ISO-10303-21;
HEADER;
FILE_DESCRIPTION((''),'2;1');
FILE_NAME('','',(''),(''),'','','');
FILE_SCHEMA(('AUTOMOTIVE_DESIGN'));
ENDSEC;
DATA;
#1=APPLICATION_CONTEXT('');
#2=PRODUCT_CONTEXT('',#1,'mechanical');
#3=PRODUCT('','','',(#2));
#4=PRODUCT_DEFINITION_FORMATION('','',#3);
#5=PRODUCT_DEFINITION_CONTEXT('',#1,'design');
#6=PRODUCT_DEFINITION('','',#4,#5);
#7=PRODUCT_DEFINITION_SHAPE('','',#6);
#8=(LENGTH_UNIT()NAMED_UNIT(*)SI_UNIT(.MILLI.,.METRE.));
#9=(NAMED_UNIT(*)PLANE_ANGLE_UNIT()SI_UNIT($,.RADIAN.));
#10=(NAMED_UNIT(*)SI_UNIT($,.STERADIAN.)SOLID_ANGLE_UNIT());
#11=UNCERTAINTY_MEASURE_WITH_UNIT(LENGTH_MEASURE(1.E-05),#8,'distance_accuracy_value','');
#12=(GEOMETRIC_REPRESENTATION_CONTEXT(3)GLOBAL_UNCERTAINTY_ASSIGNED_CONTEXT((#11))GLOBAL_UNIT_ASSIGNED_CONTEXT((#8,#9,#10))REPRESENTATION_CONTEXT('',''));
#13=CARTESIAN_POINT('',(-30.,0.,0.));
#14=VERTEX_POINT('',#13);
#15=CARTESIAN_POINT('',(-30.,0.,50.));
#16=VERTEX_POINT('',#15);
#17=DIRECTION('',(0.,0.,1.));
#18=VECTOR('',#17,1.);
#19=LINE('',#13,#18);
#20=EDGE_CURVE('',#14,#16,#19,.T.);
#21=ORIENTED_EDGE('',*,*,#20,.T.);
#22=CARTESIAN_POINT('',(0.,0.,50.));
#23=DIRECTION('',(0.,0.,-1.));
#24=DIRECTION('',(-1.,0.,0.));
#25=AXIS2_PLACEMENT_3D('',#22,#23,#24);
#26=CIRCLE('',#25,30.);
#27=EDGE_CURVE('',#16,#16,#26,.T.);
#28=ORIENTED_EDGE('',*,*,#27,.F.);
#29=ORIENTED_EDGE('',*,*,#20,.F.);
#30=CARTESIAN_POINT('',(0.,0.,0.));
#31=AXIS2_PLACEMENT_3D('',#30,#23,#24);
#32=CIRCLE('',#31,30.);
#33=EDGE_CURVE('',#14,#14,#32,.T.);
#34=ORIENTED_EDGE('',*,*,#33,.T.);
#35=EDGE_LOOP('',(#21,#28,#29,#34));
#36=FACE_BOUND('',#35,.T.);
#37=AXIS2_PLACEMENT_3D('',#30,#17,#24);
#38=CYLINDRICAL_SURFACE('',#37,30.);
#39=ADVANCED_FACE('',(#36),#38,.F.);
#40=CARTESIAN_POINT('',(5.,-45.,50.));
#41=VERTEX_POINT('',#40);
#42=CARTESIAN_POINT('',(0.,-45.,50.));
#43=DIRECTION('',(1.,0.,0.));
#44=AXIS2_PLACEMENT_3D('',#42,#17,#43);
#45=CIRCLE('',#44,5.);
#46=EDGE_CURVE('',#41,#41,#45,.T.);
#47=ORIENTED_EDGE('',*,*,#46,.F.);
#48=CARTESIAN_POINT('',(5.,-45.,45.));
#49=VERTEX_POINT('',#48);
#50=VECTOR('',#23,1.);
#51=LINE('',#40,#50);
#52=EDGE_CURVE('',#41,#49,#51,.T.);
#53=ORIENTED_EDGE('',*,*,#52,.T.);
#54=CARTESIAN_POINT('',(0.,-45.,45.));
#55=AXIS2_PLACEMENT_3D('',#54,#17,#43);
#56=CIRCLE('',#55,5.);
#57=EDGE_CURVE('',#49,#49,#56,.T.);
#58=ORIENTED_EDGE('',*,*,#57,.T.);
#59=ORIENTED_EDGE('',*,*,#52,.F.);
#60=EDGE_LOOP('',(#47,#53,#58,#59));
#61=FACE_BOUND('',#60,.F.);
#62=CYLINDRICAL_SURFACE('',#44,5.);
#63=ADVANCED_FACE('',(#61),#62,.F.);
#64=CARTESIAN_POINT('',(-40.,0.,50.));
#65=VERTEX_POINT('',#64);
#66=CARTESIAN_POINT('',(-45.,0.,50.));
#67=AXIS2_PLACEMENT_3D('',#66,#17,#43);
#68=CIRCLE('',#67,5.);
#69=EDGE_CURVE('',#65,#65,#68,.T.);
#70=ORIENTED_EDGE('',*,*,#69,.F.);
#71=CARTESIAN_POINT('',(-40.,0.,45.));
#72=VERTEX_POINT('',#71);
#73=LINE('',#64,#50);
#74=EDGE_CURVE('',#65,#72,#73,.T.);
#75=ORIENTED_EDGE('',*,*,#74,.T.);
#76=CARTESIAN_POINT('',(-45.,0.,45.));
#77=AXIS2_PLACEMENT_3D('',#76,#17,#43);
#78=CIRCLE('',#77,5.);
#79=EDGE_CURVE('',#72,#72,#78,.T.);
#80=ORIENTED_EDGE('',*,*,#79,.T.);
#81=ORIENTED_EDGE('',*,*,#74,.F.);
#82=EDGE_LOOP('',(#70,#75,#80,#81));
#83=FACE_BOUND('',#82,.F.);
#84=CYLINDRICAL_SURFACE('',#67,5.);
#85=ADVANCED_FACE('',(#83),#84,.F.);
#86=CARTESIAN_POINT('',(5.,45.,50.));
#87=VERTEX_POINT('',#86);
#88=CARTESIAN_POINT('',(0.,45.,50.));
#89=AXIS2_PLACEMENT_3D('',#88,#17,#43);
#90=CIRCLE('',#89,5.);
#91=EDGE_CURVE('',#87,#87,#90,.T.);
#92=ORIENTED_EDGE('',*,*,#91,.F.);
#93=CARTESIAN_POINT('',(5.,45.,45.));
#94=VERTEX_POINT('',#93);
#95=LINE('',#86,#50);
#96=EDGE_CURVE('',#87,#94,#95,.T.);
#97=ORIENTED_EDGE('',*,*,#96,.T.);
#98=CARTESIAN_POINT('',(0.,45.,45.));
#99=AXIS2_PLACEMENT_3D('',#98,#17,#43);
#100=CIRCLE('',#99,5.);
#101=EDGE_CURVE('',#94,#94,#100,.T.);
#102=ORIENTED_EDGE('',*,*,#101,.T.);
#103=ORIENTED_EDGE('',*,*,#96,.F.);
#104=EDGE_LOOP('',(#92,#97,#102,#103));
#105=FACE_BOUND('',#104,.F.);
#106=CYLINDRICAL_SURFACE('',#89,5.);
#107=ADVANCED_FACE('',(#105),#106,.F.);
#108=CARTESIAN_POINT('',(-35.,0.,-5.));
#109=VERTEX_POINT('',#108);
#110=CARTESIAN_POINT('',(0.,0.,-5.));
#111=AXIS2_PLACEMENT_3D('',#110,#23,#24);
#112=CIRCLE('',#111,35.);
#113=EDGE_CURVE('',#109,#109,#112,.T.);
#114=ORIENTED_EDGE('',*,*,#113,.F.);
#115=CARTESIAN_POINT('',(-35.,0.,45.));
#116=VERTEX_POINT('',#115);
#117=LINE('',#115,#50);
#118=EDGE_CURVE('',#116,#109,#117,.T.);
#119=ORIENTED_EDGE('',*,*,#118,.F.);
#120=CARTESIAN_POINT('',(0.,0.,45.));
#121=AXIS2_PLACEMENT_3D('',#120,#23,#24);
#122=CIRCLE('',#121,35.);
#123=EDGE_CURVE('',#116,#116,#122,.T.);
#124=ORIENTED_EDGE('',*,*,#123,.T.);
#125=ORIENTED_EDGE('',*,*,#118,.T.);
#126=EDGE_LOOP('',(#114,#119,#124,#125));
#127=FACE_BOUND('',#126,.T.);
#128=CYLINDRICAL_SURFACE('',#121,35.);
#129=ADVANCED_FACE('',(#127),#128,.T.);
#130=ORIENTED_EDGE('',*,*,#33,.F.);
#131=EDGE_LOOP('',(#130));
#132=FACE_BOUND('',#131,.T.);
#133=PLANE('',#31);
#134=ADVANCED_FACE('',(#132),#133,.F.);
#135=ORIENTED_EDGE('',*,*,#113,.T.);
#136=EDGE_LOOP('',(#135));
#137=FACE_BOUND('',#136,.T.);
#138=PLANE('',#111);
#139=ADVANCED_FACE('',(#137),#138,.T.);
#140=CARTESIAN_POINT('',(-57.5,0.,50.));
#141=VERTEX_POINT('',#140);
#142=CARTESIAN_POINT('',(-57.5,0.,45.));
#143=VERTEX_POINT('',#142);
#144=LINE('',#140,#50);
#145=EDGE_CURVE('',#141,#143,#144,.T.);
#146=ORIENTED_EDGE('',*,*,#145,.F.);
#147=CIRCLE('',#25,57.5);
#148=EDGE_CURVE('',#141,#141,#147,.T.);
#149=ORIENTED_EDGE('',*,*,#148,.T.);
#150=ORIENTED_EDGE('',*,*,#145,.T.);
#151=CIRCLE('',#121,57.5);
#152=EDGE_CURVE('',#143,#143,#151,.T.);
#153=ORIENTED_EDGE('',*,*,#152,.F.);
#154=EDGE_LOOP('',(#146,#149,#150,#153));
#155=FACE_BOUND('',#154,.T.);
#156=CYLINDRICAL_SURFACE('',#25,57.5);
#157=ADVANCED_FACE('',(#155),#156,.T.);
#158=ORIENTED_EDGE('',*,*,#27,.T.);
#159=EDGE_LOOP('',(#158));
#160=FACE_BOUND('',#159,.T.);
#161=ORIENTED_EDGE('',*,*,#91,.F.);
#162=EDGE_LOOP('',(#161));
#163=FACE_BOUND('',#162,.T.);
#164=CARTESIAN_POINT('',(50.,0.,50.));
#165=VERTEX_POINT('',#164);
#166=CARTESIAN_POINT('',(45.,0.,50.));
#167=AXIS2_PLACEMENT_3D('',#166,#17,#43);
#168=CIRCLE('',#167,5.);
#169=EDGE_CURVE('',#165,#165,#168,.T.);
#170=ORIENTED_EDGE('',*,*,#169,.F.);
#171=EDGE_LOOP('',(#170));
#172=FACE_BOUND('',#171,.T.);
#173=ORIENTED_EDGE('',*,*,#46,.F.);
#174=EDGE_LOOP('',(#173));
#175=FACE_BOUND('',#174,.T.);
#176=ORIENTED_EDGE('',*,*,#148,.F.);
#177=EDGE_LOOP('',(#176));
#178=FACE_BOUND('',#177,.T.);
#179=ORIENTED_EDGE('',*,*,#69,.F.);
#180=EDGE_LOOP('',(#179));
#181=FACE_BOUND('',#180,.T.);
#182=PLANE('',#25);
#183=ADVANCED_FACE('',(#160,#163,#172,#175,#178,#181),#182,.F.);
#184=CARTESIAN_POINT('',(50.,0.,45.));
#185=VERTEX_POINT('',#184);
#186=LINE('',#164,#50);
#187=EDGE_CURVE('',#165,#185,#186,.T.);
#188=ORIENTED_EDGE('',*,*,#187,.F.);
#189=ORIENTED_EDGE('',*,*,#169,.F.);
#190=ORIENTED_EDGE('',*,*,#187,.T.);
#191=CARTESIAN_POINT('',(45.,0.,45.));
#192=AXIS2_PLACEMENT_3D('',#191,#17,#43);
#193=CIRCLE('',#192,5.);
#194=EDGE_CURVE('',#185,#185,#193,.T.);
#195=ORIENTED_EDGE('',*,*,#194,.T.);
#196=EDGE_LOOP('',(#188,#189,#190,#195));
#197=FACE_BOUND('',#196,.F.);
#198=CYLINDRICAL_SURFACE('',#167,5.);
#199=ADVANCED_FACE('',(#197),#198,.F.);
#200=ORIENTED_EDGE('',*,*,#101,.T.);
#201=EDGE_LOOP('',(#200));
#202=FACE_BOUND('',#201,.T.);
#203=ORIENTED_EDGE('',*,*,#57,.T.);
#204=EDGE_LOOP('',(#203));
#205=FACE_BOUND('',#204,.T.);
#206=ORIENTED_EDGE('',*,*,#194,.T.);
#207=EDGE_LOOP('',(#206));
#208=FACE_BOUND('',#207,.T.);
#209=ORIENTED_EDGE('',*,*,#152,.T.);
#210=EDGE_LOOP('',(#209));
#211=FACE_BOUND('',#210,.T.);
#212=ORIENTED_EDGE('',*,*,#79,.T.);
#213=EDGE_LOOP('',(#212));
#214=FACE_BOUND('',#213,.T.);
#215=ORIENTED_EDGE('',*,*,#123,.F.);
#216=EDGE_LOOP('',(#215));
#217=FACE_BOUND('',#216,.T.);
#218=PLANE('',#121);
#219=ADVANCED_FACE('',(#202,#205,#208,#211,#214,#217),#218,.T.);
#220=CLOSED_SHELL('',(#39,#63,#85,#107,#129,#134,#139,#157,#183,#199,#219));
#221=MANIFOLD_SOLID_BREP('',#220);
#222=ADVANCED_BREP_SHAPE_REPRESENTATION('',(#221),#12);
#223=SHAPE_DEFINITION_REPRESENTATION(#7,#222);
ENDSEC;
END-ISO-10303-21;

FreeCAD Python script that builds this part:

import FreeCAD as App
import Part
import Sketcher
from FreeCAD import Vector

doc = App.newDocument("Part")
body = doc.addObject("PartDesign::Body", "Body")

# Sketch on XZ plane
sketch1 = doc.addObject("Sketcher::SketchObject", "Sketch")
body.addObject(sketch1)
sketch1.AttachmentSupport = (doc.XZ_Plane, [""])
sketch1.MapMode = "FlatFace"
sketch1.addGeometry([
    Part.LineSegment(Vector(-30, 50, 0), Vector(-57.5, 50, 0)),  # 0
    Part.LineSegment(Vector(-57.5, 50, 0), Vector(-57.5, 45, 0)),  # 1
    Part.LineSegment(Vector(-57.5, 45, 0), Vector(-35, 45, 0)),  # 2
    Part.LineSegment(Vector(-35, 45, 0), Vector(-35, -5, 0)),  # 3
    Part.LineSegment(Vector(-35, -5, 0), Vector(0, -5, 0)),  # 4
    Part.LineSegment(Vector(0, -5, 0), Vector(0, 0, 0)),  # 5
    Part.LineSegment(Vector(0, 0, 0), Vector(-30, 0, 0)),  # 6
    Part.LineSegment(Vector(-30, 0, 0), Vector(-30, 50, 0)),  # 7
], False)
sketch1.addConstraint([
    Sketcher.Constraint("Coincident", 0, 2, 1, 1),
    Sketcher.Constraint("Coincident", 1, 2, 2, 1),
    Sketcher.Constraint("Coincident", 2, 2, 3, 1),
    Sketcher.Constraint("Coincident", 3, 2, 4, 1),
    Sketcher.Constraint("Coincident", 4, 2, 5, 1),
    Sketcher.Constraint("Coincident", 5, 2, 6, 1),
    Sketcher.Constraint("Coincident", 6, 2, 7, 1),
    Sketcher.Constraint("Coincident", 7, 2, 0, 1),
    Sketcher.Constraint("Horizontal", 0),
    Sketcher.Constraint("Vertical", 1),
    Sketcher.Constraint("Horizontal", 2),
    Sketcher.Constraint("Vertical", 3),
    Sketcher.Constraint("Horizontal", 4),
    Sketcher.Constraint("Vertical", 5),
    Sketcher.Constraint("Horizontal", 6),
    Sketcher.Constraint("Vertical", 7),
    Sketcher.Constraint("Coincident", 5, 2, -1, 1),
    Sketcher.Constraint("Equal", 1, 5),
    Sketcher.Constraint("DistanceX", 4, 1, 4, 2, 35.0),
    Sketcher.Constraint("DistanceX", 6, 2, 6, 1, 30.0),
    Sketcher.Constraint("DistanceY", 1, 2, 1, 1, 5.0),
    Sketcher.Constraint("DistanceY", 3, 2, 3, 1, 50.0),
    Sketcher.Constraint("DistanceX", 0, 2, 0, 1, 27.5),
])
revolution = doc.addObject("PartDesign::Revolution", "Revolution")
body.addObject(revolution)
revolution.Profile = sketch1
revolution.ReferenceAxis = (sketch1, ["V_Axis"])
revolution.Angle = 360

# Sketch on XY plane
sketch2 = doc.addObject("Sketcher::SketchObject", "Sketch001")
body.addObject(sketch2)
sketch2.AttachmentSupport = (doc.XY_Plane, [""])
sketch2.MapMode = "FlatFace"
sketch2.AttachmentOffset = App.Placement(Vector(0, 0, 50), App.Rotation())
sketch2.addGeometry([
    Part.Circle(Vector(0, 45, 0), Vector(0, 0, 1), 5),
    Part.Circle(Vector(-45, 0, 0), Vector(0, 0, 1), 5),
    Part.Circle(Vector(0, -45, 0), Vector(0, 0, 1), 5),
    Part.Circle(Vector(45, 0, 0), Vector(0, 0, 1), 5),
], False)
sketch2.addConstraint([
    Sketcher.Constraint("Equal", 0, 1),
    Sketcher.Constraint("Equal", 1, 2),
    Sketcher.Constraint("Equal", 2, 3),
    Sketcher.Constraint("Symmetric", 0, 3, 2, 3, -1, 1),
    Sketcher.Constraint("Symmetric", 1, 3, 3, 3, -1, 1),
    Sketcher.Constraint("PointOnObject", 0, 3, -2),
    Sketcher.Constraint("PointOnObject", 1, 3, -1),
    Sketcher.Constraint("Diameter", 0, 10.0),
    Sketcher.Constraint("DistanceY", -1, 1, 0, 3, 45.0),
    Sketcher.Constraint("DistanceX", 1, 3, -1, 1, 45.0),
])
pocket1 = doc.addObject("PartDesign::Pocket", "Pocket")
body.addObject(pocket1)
pocket1.Profile = sketch2
pocket1.Length = 25

doc.recompute()
